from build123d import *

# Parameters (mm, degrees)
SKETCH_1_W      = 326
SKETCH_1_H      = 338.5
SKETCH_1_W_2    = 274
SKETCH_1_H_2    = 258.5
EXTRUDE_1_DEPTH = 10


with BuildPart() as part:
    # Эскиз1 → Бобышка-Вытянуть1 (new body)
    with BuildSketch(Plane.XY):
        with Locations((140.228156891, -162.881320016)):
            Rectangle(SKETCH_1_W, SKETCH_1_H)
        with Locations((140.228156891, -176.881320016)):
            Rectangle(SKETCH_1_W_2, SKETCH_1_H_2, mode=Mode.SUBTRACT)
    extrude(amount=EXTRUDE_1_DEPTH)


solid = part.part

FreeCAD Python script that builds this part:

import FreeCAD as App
import Part
import Sketcher
Q = App.Units.Quantity


def add_polygon(sketch, points):
    """Adds a closed chain of lines whose ends are joined by coincident constraints."""
    first, n = sketch.GeometryCount, len(points)
    for a, b in zip(points, points[1:] + points[:1]):
        sketch.addGeometry(Part.LineSegment(App.Vector(*a, 0), App.Vector(*b, 0)), False)
    for i in range(n):
        sketch.addConstraint(Sketcher.Constraint("Coincident", first + i, 2, first + (i + 1) % n, 1))

doc = App.newDocument("Part")
params = doc.addObject("Spreadsheet::Sheet", "Params")
for row, (alias, value) in enumerate([
    ("sketch1_width", "326 mm"),
    ("sketch1_width2", "274 mm"),
    ("sketch1_height", "338.5 mm"),
    ("sketch1_height2", "258.5 mm"),
    ("pad1_length", "10 mm"),
], start=1):
    params.set(f"A{row}", alias)
    params.set(f"B{row}", "=" + value)
    params.setAlias(f"B{row}", alias)

body = doc.addObject("PartDesign::Body", "Body")

# Sketch on XY plane
sketch1 = body.newObject("Sketcher::SketchObject", "Sketch")
sketch1.AttachmentSupport = (doc.getObject("XY_Plane"), [""])
sketch1.MapMode = "FlatFace"
add_polygon(sketch1, [(-23, 6), (-23, -332), (303, -332), (303, 6)])  # lines 0-3
add_polygon(sketch1, [(277, -306), (3, -306), (3, -48), (277, -48)])  # lines 4-7
sketch1.addConstraint(Sketcher.Constraint("Vertical", 0))
sketch1.addConstraint(Sketcher.Constraint("Horizontal", 1))
sketch1.addConstraint(Sketcher.Constraint("Vertical", 2))
sketch1.addConstraint(Sketcher.Constraint("Horizontal", 3))
sketch1.addConstraint(Sketcher.Constraint("Horizontal", 4))
sketch1.addConstraint(Sketcher.Constraint("Vertical", 5))
sketch1.addConstraint(Sketcher.Constraint("Horizontal", 6))
sketch1.addConstraint(Sketcher.Constraint("Vertical", 7))
sketch1.addConstraint(Sketcher.Constraint("DistanceX", 1, 1, 1, 2, Q("326 mm")))
sketch1.addConstraint(Sketcher.Constraint("DistanceX", 4, 2, 4, 1, Q("274 mm")))
sketch1.addConstraint(Sketcher.Constraint("DistanceY", 0, 2, 0, 1, Q("338.5 mm")))
sketch1.addConstraint(Sketcher.Constraint("DistanceY", 5, 1, 5, 2, Q("258.5 mm")))
sketch1.addConstraint(Sketcher.Constraint("DistanceX", 0, 2, 4, 2, Q("26 mm")))
sketch1.addConstraint(Sketcher.Constraint("DistanceY", 0, 2, 4, 2, Q("26 mm")))
sketch1.addConstraint(Sketcher.Constraint("DistanceY", 0, 2, -1, 1, Q("332.13132 mm")))
sketch1.addConstraint(Sketcher.Constraint("DistanceX", 0, 2, -1, 1, Q("22.771843 mm")))
sketch1.setExpression("Constraints[16]", "Params.sketch1_width")
sketch1.setExpression("Constraints[17]", "Params.sketch1_width2")
sketch1.setExpression("Constraints[18]", "Params.sketch1_height")
sketch1.setExpression("Constraints[19]", "Params.sketch1_height2")
pad1 = body.newObject("PartDesign::Pad", "Pad")
pad1.Profile = sketch1
pad1.setExpression("Length", "Params.pad1_length")

doc.recompute()
